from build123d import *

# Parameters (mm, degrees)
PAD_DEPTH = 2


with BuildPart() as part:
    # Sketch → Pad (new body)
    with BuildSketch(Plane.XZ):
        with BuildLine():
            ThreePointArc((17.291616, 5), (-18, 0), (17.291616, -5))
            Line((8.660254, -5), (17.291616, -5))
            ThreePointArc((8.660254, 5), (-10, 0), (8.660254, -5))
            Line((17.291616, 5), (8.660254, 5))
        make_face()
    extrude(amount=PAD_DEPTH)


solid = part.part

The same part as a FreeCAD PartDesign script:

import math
import FreeCAD as App
import Part
import Sketcher
Q = App.Units.Quantity

doc = App.newDocument("Part")
body = doc.addObject("PartDesign::Body", "Body")

# Sketch on XZ plane
sketch1 = body.newObject("Sketcher::SketchObject", "Sketch")
sketch1.AttachmentSupport = (doc.getObject("XZ_Plane"), [""])
sketch1.MapMode = "FlatFace"
sketch1.addGeometry(Part.ArcOfCircle(Part.Circle(App.Vector(0, 0, 0), App.Vector(0, 0, 1), 18), math.radians(16), math.radians(344)), False)
sketch1.addGeometry(Part.LineSegment(App.Vector(17, -5, 0), App.Vector(9, -5, 0)), False)
sketch1.addGeometry(Part.ArcOfCircle(Part.Circle(App.Vector(0, 0, 0), App.Vector(0, 0, 1), 10), math.radians(30), math.radians(330)), False)
sketch1.addGeometry(Part.LineSegment(App.Vector(9, 5, 0), App.Vector(17, 5, 0)), False)
sketch1.addConstraint(Sketcher.Constraint("Coincident", 0, 2, 1, 1))
sketch1.addConstraint(Sketcher.Constraint("Coincident", 1, 2, 2, 2))
sketch1.addConstraint(Sketcher.Constraint("Coincident", 2, 1, 3, 1))
sketch1.addConstraint(Sketcher.Constraint("Coincident", 3, 2, 0, 1))
sketch1.addConstraint(Sketcher.Constraint("Horizontal", 1))
sketch1.addConstraint(Sketcher.Constraint("Horizontal", 3))
sketch1.addConstraint(Sketcher.Constraint("Coincident", 0, 3, -1, 1))
sketch1.addConstraint(Sketcher.Constraint("Coincident", 2, 3, -1, 1))
sketch1.addConstraint(Sketcher.Constraint("Vertical", 1, 2, 2, 1))
sketch1.addConstraint(Sketcher.Constraint("Radius", 0, Q("18 mm")))
sketch1.addConstraint(Sketcher.Constraint("Radius", 2, Q("10 mm")))
sketch1.addConstraint(Sketcher.Constraint("DistanceY", 0, 2, -1, 1, Q("5 mm")))
pad1 = body.newObject("PartDesign::Pad", "Pad")
pad1.Profile = sketch1
pad1.Length = 2

doc.recompute()
